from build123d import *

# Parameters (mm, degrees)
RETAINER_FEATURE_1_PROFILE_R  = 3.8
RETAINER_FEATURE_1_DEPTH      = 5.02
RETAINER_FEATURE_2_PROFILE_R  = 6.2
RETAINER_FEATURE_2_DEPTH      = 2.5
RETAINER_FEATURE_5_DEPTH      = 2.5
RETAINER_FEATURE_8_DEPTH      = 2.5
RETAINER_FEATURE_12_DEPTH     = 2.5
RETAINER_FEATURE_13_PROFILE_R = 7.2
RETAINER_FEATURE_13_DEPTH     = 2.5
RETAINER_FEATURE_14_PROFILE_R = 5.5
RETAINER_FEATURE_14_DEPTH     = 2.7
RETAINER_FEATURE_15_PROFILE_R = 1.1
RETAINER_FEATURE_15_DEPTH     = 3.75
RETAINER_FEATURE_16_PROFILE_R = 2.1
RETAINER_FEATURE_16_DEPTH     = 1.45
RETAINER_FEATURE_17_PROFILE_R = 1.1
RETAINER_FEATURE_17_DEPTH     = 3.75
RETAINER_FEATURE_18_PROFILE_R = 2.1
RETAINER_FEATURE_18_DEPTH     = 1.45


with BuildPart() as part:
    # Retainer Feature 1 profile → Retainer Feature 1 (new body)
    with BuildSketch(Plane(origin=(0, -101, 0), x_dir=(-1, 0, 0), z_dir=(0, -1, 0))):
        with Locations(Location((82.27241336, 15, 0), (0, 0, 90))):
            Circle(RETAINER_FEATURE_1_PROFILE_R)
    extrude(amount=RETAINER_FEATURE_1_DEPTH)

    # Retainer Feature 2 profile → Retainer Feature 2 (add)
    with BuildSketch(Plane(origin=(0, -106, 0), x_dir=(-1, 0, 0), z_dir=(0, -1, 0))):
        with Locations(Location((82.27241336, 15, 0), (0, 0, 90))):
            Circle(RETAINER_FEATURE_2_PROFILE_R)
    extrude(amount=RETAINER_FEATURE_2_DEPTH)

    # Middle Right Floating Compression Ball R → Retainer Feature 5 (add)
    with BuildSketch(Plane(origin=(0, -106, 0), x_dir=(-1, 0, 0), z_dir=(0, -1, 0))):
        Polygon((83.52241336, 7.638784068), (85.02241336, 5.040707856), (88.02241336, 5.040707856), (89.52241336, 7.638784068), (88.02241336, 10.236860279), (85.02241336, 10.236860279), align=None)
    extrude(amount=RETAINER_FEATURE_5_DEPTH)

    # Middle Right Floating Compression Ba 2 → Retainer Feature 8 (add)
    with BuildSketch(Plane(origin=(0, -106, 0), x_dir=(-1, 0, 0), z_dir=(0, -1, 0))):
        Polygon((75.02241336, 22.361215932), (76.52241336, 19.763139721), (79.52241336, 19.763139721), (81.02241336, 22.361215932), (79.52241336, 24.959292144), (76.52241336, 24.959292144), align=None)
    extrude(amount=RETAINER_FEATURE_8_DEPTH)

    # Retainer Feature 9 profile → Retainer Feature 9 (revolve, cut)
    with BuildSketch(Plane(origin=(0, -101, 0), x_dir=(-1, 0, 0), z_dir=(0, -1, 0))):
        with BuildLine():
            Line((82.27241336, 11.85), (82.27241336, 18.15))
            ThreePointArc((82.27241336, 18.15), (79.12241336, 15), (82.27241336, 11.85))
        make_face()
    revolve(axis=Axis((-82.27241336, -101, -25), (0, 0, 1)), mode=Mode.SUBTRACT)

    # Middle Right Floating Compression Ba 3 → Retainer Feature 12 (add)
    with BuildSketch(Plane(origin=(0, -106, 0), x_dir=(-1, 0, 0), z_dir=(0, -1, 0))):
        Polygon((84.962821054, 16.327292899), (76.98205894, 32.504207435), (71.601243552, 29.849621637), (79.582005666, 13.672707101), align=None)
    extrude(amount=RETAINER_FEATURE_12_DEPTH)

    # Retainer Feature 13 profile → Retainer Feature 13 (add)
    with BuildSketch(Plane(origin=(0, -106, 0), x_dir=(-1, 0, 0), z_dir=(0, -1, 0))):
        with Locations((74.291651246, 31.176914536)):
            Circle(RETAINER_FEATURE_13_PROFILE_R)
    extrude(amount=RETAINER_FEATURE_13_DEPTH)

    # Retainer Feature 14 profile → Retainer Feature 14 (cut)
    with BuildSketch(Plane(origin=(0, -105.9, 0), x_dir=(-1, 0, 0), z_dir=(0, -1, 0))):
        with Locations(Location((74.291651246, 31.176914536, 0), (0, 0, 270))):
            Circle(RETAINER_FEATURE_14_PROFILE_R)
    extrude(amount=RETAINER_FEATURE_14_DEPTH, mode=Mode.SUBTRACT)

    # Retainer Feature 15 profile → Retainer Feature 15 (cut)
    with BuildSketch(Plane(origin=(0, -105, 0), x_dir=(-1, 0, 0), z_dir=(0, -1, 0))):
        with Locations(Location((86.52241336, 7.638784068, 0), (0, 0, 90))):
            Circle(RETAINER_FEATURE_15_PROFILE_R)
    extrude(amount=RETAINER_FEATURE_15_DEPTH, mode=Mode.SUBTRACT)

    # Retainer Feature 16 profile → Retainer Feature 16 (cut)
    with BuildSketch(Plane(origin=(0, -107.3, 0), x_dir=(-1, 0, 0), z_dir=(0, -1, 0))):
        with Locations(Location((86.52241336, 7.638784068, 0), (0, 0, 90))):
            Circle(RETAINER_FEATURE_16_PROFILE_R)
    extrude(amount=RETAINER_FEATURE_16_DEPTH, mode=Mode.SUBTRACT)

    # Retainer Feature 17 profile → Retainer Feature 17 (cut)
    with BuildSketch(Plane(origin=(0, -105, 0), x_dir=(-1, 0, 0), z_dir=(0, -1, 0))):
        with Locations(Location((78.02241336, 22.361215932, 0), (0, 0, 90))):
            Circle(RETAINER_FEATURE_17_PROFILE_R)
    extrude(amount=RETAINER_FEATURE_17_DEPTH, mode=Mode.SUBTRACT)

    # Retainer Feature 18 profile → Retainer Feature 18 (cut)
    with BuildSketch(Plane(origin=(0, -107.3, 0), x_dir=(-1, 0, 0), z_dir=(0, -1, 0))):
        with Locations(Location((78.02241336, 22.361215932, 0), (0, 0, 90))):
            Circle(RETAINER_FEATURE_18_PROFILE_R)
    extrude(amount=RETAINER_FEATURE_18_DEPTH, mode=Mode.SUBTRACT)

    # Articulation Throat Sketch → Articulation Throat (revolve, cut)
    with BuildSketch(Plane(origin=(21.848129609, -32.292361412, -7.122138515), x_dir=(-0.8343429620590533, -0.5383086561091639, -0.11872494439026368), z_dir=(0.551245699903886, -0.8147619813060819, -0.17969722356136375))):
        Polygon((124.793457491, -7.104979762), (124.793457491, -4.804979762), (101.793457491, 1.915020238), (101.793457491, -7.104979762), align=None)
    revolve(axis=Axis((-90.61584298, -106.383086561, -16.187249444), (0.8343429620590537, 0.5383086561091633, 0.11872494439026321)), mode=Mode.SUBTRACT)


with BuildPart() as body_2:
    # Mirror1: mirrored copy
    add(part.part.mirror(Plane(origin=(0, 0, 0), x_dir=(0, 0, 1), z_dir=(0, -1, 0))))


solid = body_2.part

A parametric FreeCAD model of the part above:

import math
import FreeCAD as App
import Part
import Sketcher

V = App.Vector
Q = App.Units.Quantity

doc = App.newDocument("Part")
params = doc.addObject("Spreadsheet::Sheet", "Params")
for row, (alias, value) in enumerate([
    ("sketch1_diameter", "7.6 mm"),
    ("pad1_length", "5.02 mm"),
    ("sketch2_diameter", "12.4 mm"),
    ("pad2_length", "2.5 mm"),
    ("sketch3_width", "3 mm"),
    ("sketch3_length", "3 mm"),
    ("pad3_length", "2.5 mm"),
    ("sketch4_width", "3 mm"),
    ("sketch4_length", "3 mm"),
    ("pad4_length", "2.5 mm"),
    ("sketch5_radius", "3.15 mm"),
    ("groove_angle", "360 deg"),
    ("sketch6_length", "6 mm"),
    ("pad5_length", "2.5 mm"),
    ("sketch7_diameter", "14.4 mm"),
    ("pad6_length", "2.5 mm"),
    ("sketch8_diameter", "11 mm"),
    ("pocket1_length", "2.7 mm"),
    ("sketch9_diameter", "2.2 mm"),
    ("pocket2_length", "3.75 mm"),
    ("sketch10_diameter", "4.2 mm"),
    ("pocket3_length", "1.45 mm"),
    ("sketch11_diameter", "2.2 mm"),
    ("pocket4_length", "3.75 mm"),
    ("sketch12_diameter", "4.2 mm"),
    ("pocket5_length", "1.45 mm"),
    ("sketch13_width", "23 mm"),
    ("sketch13_height", "2.3 mm"),
    ("sketch13_height2", "9.02 mm"),
    ("groove2_angle", "360 deg"),
], start=1):
    params.set(f"A{row}", alias)
    params.set(f"B{row}", "=" + value)
    params.setAlias(f"B{row}", alias)

body = doc.addObject("PartDesign::Body", "Body")

# Sketch on XZ plane
sketch1 = body.newObject("Sketcher::SketchObject", "Sketch")
sketch1.AttachmentSupport = (doc.getObject("XZ_Plane"), [""])
sketch1.MapMode = "FlatFace"
sketch1.AttachmentOffset = App.Placement(V(0, 0, 101), App.Rotation())
sketch1.addGeometry(Part.Circle(V(-82.3, -15, 0), V(0, 0, 1), 3.8), False)
sketch1.addConstraint(Sketcher.Constraint("Diameter", 0, 7.6))
sketch1.addConstraint(Sketcher.Constraint("DistanceY", 0, 3, -1, 1, 15.0))
sketch1.addConstraint(Sketcher.Constraint("DistanceX", 0, 3, -1, 1, 82.272413))
sketch1.setExpression("Constraints[0]", "Params.sketch1_diameter")
pad1 = body.newObject("PartDesign::Pad", "Pad")
pad1.Profile = sketch1
pad1.setExpression("Length", "Params.pad1_length")

# Sketch on XZ plane
sketch2 = body.newObject("Sketcher::SketchObject", "Sketch001")
sketch2.AttachmentSupport = (doc.getObject("XZ_Plane"), [""])
sketch2.MapMode = "FlatFace"
sketch2.AttachmentOffset = App.Placement(V(0, 0, 106), App.Rotation())
sketch2.addGeometry(Part.Circle(V(-82, -15, 0), V(0, 0, 1), 6), False)
sketch2.addConstraint(Sketcher.Constraint("Diameter", 0, 12.4))
sketch2.addConstraint(Sketcher.Constraint("DistanceY", 0, 3, -1, 1, 15.0))
sketch2.addConstraint(Sketcher.Constraint("DistanceX", 0, 3, -1, 1, 82.272413))
sketch2.setExpression("Constraints[0]", "Params.sketch2_diameter")
pad2 = body.newObject("PartDesign::Pad", "Pad001")
pad2.Profile = sketch2
pad2.setExpression("Length", "Params.pad2_length")

# Sketch on XZ plane
sketch3 = body.newObject("Sketcher::SketchObject", "Sketch002")
sketch3.AttachmentSupport = (doc.getObject("XZ_Plane"), [""])
sketch3.MapMode = "FlatFace"
sketch3.AttachmentOffset = App.Placement(V(0, 0, 106), App.Rotation())
sketch3.addGeometry(Part.LineSegment(V(-83.5, -7.6, 0), V(-85, -5, 0)), False)
sketch3.addGeometry(Part.LineSegment(V(-85, -5, 0), V(-88, -5, 0)), False)
sketch3.addGeometry(Part.LineSegment(V(-88, -5, 0), V(-89.5, -7.6, 0)), False)
sketch3.addGeometry(Part.LineSegment(V(-89.5, -7.6, 0), V(-88, -10.2, 0)), False)
sketch3.addGeometry(Part.LineSegment(V(-88, -10.2, 0), V(-85, -10.2, 0)), False)
sketch3.addGeometry(Part.LineSegment(V(-85, -10.2, 0), V(-83.5, -7.6, 0)), False)
sketch3.addConstraint(Sketcher.Constraint("Coincident", 0, 2, 1, 1))
sketch3.addConstraint(Sketcher.Constraint("Coincident", 1, 2, 2, 1))
sketch3.addConstraint(Sketcher.Constraint("Coincident", 2, 2, 3, 1))
sketch3.addConstraint(Sketcher.Constraint("Coincident", 3, 2, 4, 1))
sketch3.addConstraint(Sketcher.Constraint("Coincident", 4, 2, 5, 1))
sketch3.addConstraint(Sketcher.Constraint("Coincident", 5, 2, 0, 1))
sketch3.addConstraint(Sketcher.Constraint("Horizontal", 1))
sketch3.addConstraint(Sketcher.Constraint("Horizontal", 4))
sketch3.addConstraint(Sketcher.Constraint("Parallel", 0, 3))
sketch3.addConstraint(Sketcher.Constraint("Parallel", 2, 5))
sketch3.addConstraint(Sketcher.Constraint("Horizontal", 2, 2, 5, 2))
sketch3.addConstraint(Sketcher.Constraint("Vertical", 1, 2, 3, 2))
sketch3.addConstraint(Sketcher.Constraint("Vertical", 0, 2, 4, 2))
sketch3.addConstraint(Sketcher.Constraint("DistanceX", 1, 2, 1, 1, 3.0))
sketch3.addConstraint(Sketcher.Constraint("Angle", 0, Q("120 deg")))
sketch3.addConstraint(Sketcher.Constraint("Distance", 0, 3.0))
sketch3.addConstraint(Sketcher.Constraint("DistanceY", 3, 2, -1, 1, 10.23686))
sketch3.addConstraint(Sketcher.Constraint("DistanceX", 0, 2, -1, 1, 85.022413))
sketch3.setExpression("Constraints[13]", "Params.sketch3_width")
sketch3.setExpression("Constraints[15]", "Params.sketch3_length")
pad3 = body.newObject("PartDesign::Pad", "Pad002")
pad3.Profile = sketch3
pad3.setExpression("Length", "Params.pad3_length")

# Sketch on XZ plane
sketch4 = body.newObject("Sketcher::SketchObject", "Sketch003")
sketch4.AttachmentSupport = (doc.getObject("XZ_Plane"), [""])
sketch4.MapMode = "FlatFace"
sketch4.AttachmentOffset = App.Placement(V(0, 0, 106), App.Rotation())
sketch4.addGeometry(Part.LineSegment(V(-75, -22.4, 0), V(-76.5, -19.8, 0)), False)
sketch4.addGeometry(Part.LineSegment(V(-76.5, -19.8, 0), V(-79.5, -19.8, 0)), False)
sketch4.addGeometry(Part.LineSegment(V(-79.5, -19.8, 0), V(-81, -22.4, 0)), False)
sketch4.addGeometry(Part.LineSegment(V(-81, -22.4, 0), V(-79.5, -25, 0)), False)
sketch4.addGeometry(Part.LineSegment(V(-79.5, -25, 0), V(-76.5, -25, 0)), False)
sketch4.addGeometry(Part.LineSegment(V(-76.5, -25, 0), V(-75, -22.4, 0)), False)
sketch4.addConstraint(Sketcher.Constraint("Coincident", 0, 2, 1, 1))
sketch4.addConstraint(Sketcher.Constraint("Coincident", 1, 2, 2, 1))
sketch4.addConstraint(Sketcher.Constraint("Coincident", 2, 2, 3, 1))
sketch4.addConstraint(Sketcher.Constraint("Coincident", 3, 2, 4, 1))
sketch4.addConstraint(Sketcher.Constraint("Coincident", 4, 2, 5, 1))
sketch4.addConstraint(Sketcher.Constraint("Coincident", 5, 2, 0, 1))
sketch4.addConstraint(Sketcher.Constraint("Horizontal", 1))
sketch4.addConstraint(Sketcher.Constraint("Horizontal", 4))
sketch4.addConstraint(Sketcher.Constraint("Parallel", 0, 3))
sketch4.addConstraint(Sketcher.Constraint("Parallel", 2, 5))
sketch4.addConstraint(Sketcher.Constraint("Horizontal", 2, 2, 5, 2))
sketch4.addConstraint(Sketcher.Constraint("Vertical", 1, 2, 3, 2))
sketch4.addConstraint(Sketcher.Constraint("Vertical", 0, 2, 4, 2))
sketch4.addConstraint(Sketcher.Constraint("DistanceX", 1, 2, 1, 1, 3.0))
sketch4.addConstraint(Sketcher.Constraint("Angle", 0, Q("120 deg")))
sketch4.addConstraint(Sketcher.Constraint("Distance", 0, 3.0))
sketch4.addConstraint(Sketcher.Constraint("DistanceY", 0, 2, -1, 1, 19.76314))
sketch4.addConstraint(Sketcher.Constraint("DistanceX", 0, 2, -1, 1, 76.522413))
sketch4.setExpression("Constraints[13]", "Params.sketch4_width")
sketch4.setExpression("Constraints[15]", "Params.sketch4_length")
pad4 = body.newObject("PartDesign::Pad", "Pad003")
pad4.Profile = sketch4
pad4.setExpression("Length", "Params.pad4_length")

# Sketch on XZ plane
sketch5 = body.newObject("Sketcher::SketchObject", "Sketch004")
sketch5.AttachmentSupport = (doc.getObject("XZ_Plane"), [""])
sketch5.MapMode = "FlatFace"
sketch5.AttachmentOffset = App.Placement(V(0, 0, 101), App.Rotation())
sketch5.addGeometry(Part.LineSegment(V(-82.3, -11.8, 0), V(-82.3, -18.1, 0)), False)
sketch5.addGeometry(Part.ArcOfCircle(Part.Circle(V(-82.3, -15, 0), V(0, 0, 1), 3.1), math.radians(-90), math.radians(90)), False)
sketch5.addGeometry(Part.LineSegment(V(-82.3, -18.1, 0), V(-82.3, -11.8, 0)), True)  # axis
sketch5.addConstraint(Sketcher.Constraint("Coincident", 0, 1, 1, 2))
sketch5.addConstraint(Sketcher.Constraint("Coincident", 1, 1, 0, 2))
sketch5.addConstraint(Sketcher.Constraint("Vertical", 0))
sketch5.addConstraint(Sketcher.Constraint("Vertical", 2))
sketch5.addConstraint(Sketcher.Constraint("Coincident", 2, 1, 1, 1))
sketch5.addConstraint(Sketcher.Constraint("Vertical", 1, 3, 0, 1))
sketch5.addConstraint(Sketcher.Constraint("Equal", 0, 2))
sketch5.addConstraint(Sketcher.Constraint("Radius", 1, 3.15))
sketch5.addConstraint(Sketcher.Constraint("DistanceY", 1, 3, -1, 1, 15.0))
sketch5.addConstraint(Sketcher.Constraint("DistanceX", 1, 3, -1, 1, 82.272413))
sketch5.setExpression("Constraints[7]", "Params.sketch5_radius")
groove = body.newObject("PartDesign::Groove", "Groove")
groove.Profile = sketch5
groove.ReferenceAxis = (sketch5, ["Axis0"])
groove.setExpression("Angle", "Params.groove_angle")

# Sketch on XZ plane
sketch6 = body.newObject("Sketcher::SketchObject", "Sketch005")
sketch6.AttachmentSupport = (doc.getObject("XZ_Plane"), [""])
sketch6.MapMode = "FlatFace"
sketch6.AttachmentOffset = App.Placement(V(0, 0, 106), App.Rotation())
sketch6.addGeometry(Part.LineSegment(V(-85, -16, 0), V(-77, -33, 0)), False)
sketch6.addGeometry(Part.LineSegment(V(-77, -33, 0), V(-72, -30, 0)), False)
sketch6.addGeometry(Part.LineSegment(V(-72, -30, 0), V(-80, -14, 0)), False)
sketch6.addGeometry(Part.LineSegment(V(-80, -14, 0), V(-85, -16, 0)), False)
sketch6.addConstraint(Sketcher.Constraint("Coincident", 0, 2, 1, 1))
sketch6.addConstraint(Sketcher.Constraint("Coincident", 1, 2, 2, 1))
sketch6.addConstraint(Sketcher.Constraint("Coincident", 2, 2, 3, 1))
sketch6.addConstraint(Sketcher.Constraint("Coincident", 3, 2, 0, 1))
sketch6.addConstraint(Sketcher.Constraint("Perpendicular", 0, 1))
sketch6.addConstraint(Sketcher.Constraint("Perpendicular", 1, 2))
sketch6.addConstraint(Sketcher.Constraint("Perpendicular", 2, 3))
sketch6.addConstraint(Sketcher.Constraint("Distance", 1, 6.0))
sketch6.addConstraint(Sketcher.Constraint("DistanceY", 0, 2, 2, 2, 18.8315))
sketch6.addConstraint(Sketcher.Constraint("DistanceX", 0, 2, -1, 1, 76.982059))
sketch6.addConstraint(Sketcher.Constraint("DistanceY", 1, 2, -1, 1, 29.849622))
sketch6.addConstraint(Sketcher.Constraint("DistanceX", 3, 2, -1, 1, 84.962821))
sketch6.setExpression("Constraints[7]", "Params.sketch6_length")
pad5 = body.newObject("PartDesign::Pad", "Pad004")
pad5.Profile = sketch6
pad5.setExpression("Length", "Params.pad5_length")

# Sketch on XZ plane
sketch7 = body.newObject("Sketcher::SketchObject", "Sketch006")
sketch7.AttachmentSupport = (doc.getObject("XZ_Plane"), [""])
sketch7.MapMode = "FlatFace"
sketch7.AttachmentOffset = App.Placement(V(0, 0, 106), App.Rotation())
sketch7.addGeometry(Part.Circle(V(-74, -31, 0), V(0, 0, 1), 7), False)
sketch7.addConstraint(Sketcher.Constraint("Diameter", 0, 14.4))
sketch7.addConstraint(Sketcher.Constraint("DistanceX", 0, 3, -1, 1, 74.291651))
sketch7.addConstraint(Sketcher.Constraint("DistanceY", 0, 3, -1, 1, 31.176915))
sketch7.setExpression("Constraints[0]", "Params.sketch7_diameter")
pad6 = body.newObject("PartDesign::Pad", "Pad005")
pad6.Profile = sketch7
pad6.setExpression("Length", "Params.pad6_length")

# Sketch on XZ plane
sketch8 = body.newObject("Sketcher::SketchObject", "Sketch007")
sketch8.AttachmentSupport = (doc.getObject("XZ_Plane"), [""])
sketch8.MapMode = "FlatFace"
sketch8.AttachmentOffset = App.Placement(V(0, 0, 105.9), App.Rotation())
sketch8.addGeometry(Part.Circle(V(-74, -31, 0), V(0, 0, 1), 6), False)
sketch8.addConstraint(Sketcher.Constraint("Diameter", 0, 11.0))
sketch8.addConstraint(Sketcher.Constraint("DistanceX", 0, 3, -1, 1, 74.291651))
sketch8.addConstraint(Sketcher.Constraint("DistanceY", 0, 3, -1, 1, 31.176915))
sketch8.setExpression("Constraints[0]", "Params.sketch8_diameter")
pocket1 = body.newObject("PartDesign::Pocket", "Pocket")
pocket1.Profile = sketch8
pocket1.setExpression("Length", "Params.pocket1_length")
pocket1.Reversed = True

# Sketch on XZ plane
sketch9 = body.newObject("Sketcher::SketchObject", "Sketch008")
sketch9.AttachmentSupport = (doc.getObject("XZ_Plane"), [""])
sketch9.MapMode = "FlatFace"
sketch9.AttachmentOffset = App.Placement(V(0, 0, 105), App.Rotation())
sketch9.addGeometry(Part.Circle(V(-86.5, -7.6, 0), V(0, 0, 1), 1.1), False)
sketch9.addConstraint(Sketcher.Constraint("Diameter", 0, 2.2))
sketch9.addConstraint(Sketcher.Constraint("DistanceX", 0, 3, -1, 1, 86.522413))
sketch9.addConstraint(Sketcher.Constraint("DistanceY", 0, 3, -1, 1, 7.638784))
sketch9.setExpression("Constraints[0]", "Params.sketch9_diameter")
pocket2 = body.newObject("PartDesign::Pocket", "Pocket001")
pocket2.Profile = sketch9
pocket2.setExpression("Length", "Params.pocket2_length")
pocket2.Reversed = True

# Sketch on XZ plane
sketch10 = body.newObject("Sketcher::SketchObject", "Sketch009")
sketch10.AttachmentSupport = (doc.getObject("XZ_Plane"), [""])
sketch10.MapMode = "FlatFace"
sketch10.AttachmentOffset = App.Placement(V(0, 0, 107.3), App.Rotation())
sketch10.addGeometry(Part.Circle(V(-86.5, -7.6, 0), V(0, 0, 1), 2.1), False)
sketch10.addConstraint(Sketcher.Constraint("Diameter", 0, 4.2))
sketch10.addConstraint(Sketcher.Constraint("DistanceX", 0, 3, -1, 1, 86.522413))
sketch10.addConstraint(Sketcher.Constraint("DistanceY", 0, 3, -1, 1, 7.638784))
sketch10.setExpression("Constraints[0]", "Params.sketch10_diameter")
pocket3 = body.newObject("PartDesign::Pocket", "Pocket002")
pocket3.Profile = sketch10
pocket3.setExpression("Length", "Params.pocket3_length")
pocket3.Reversed = True

# Sketch on XZ plane
sketch11 = body.newObject("Sketcher::SketchObject", "Sketch010")
sketch11.AttachmentSupport = (doc.getObject("XZ_Plane"), [""])
sketch11.MapMode = "FlatFace"
sketch11.AttachmentOffset = App.Placement(V(0, 0, 105), App.Rotation())
sketch11.addGeometry(Part.Circle(V(-78, -22.4, 0), V(0, 0, 1), 1.1), False)
sketch11.addConstraint(Sketcher.Constraint("Diameter", 0, 2.2))
sketch11.addConstraint(Sketcher.Constraint("DistanceX", 0, 3, -1, 1, 78.022413))
sketch11.addConstraint(Sketcher.Constraint("DistanceY", 0, 3, -1, 1, 22.361216))
sketch11.setExpression("Constraints[0]", "Params.sketch11_diameter")
pocket4 = body.newObject("PartDesign::Pocket", "Pocket003")
pocket4.Profile = sketch11
pocket4.setExpression("Length", "Params.pocket4_length")
pocket4.Reversed = True

# Sketch on XZ plane
sketch12 = body.newObject("Sketcher::SketchObject", "Sketch011")
sketch12.AttachmentSupport = (doc.getObject("XZ_Plane"), [""])
sketch12.MapMode = "FlatFace"
sketch12.AttachmentOffset = App.Placement(V(0, 0, 107.3), App.Rotation())
sketch12.addGeometry(Part.Circle(V(-78, -22.4, 0), V(0, 0, 1), 2.1), False)
sketch12.addConstraint(Sketcher.Constraint("Diameter", 0, 4.2))
sketch12.addConstraint(Sketcher.Constraint("DistanceX", 0, 3, -1, 1, 78.022413))
sketch12.addConstraint(Sketcher.Constraint("DistanceY", 0, 3, -1, 1, 22.361216))
sketch12.setExpression("Constraints[0]", "Params.sketch12_diameter")
pocket5 = body.newObject("PartDesign::Pocket", "Pocket004")
pocket5.Profile = sketch12
pocket5.setExpression("Length", "Params.pocket5_length")
pocket5.Reversed = True

# Sketch on an angled plane
sketch13 = body.newObject("Sketcher::SketchObject", "Sketch012")
sketch13.Placement = App.Placement(V(21.84813, -32.292361, -7.122139), App.Rotation(V(-0.834342962, -0.538308656, -0.118724944), V(-0.000000001, 0.215375729, -0.976531256), V(0.5512457, -0.814761981, -0.179697224), "ZXY"))
sketch13.addGeometry(Part.LineSegment(V(124.8, -7.1, 0), V(124.8, -4.8, 0)), False)
sketch13.addGeometry(Part.LineSegment(V(124.8, -4.8, 0), V(101.8, 1.9, 0)), False)
sketch13.addGeometry(Part.LineSegment(V(101.8, 1.9, 0), V(101.8, -7.1, 0)), False)
sketch13.addGeometry(Part.LineSegment(V(101.8, -7.1, 0), V(124.8, -7.1, 0)), False)
sketch13.addGeometry(Part.LineSegment(V(124.8, -7.1, 0), V(101.8, -7.1, 0)), True)  # axis
sketch13.addConstraint(Sketcher.Constraint("Coincident", 0, 2, 1, 1))
sketch13.addConstraint(Sketcher.Constraint("Coincident", 1, 2, 2, 1))
sketch13.addConstraint(Sketcher.Constraint("Coincident", 2, 2, 3, 1))
sketch13.addConstraint(Sketcher.Constraint("Coincident", 3, 2, 0, 1))
sketch13.addConstraint(Sketcher.Constraint("Vertical", 0))
sketch13.addConstraint(Sketcher.Constraint("Vertical", 2))
sketch13.addConstraint(Sketcher.Constraint("Horizontal", 3))
sketch13.addConstraint(Sketcher.Constraint("Horizontal", 4))
sketch13.addConstraint(Sketcher.Constraint("Coincident", 4, 1, 3, 2))
sketch13.addConstraint(Sketcher.Constraint("Vertical", 1, 2, 4, 2))
sketch13.addConstraint(Sketcher.Constraint("DistanceX", 3, 1, 3, 2, 23.0))
sketch13.addConstraint(Sketcher.Constraint("DistanceY", 0, 1, 0, 2, 2.3))
sketch13.addConstraint(Sketcher.Constraint("DistanceY", 2, 2, 2, 1, 9.02))
sketch13.addConstraint(Sketcher.Constraint("DistanceY", 0, 2, -1, 1, 4.80498))
sketch13.addConstraint(Sketcher.Constraint("DistanceX", -1, 1, 0, 2, 124.793457))
sketch13.setExpression("Constraints[10]", "Params.sketch13_width")
sketch13.setExpression("Constraints[11]", "Params.sketch13_height")
sketch13.setExpression("Constraints[12]", "Params.sketch13_height2")
groove2 = body.newObject("PartDesign::Groove", "Groove001")
groove2.Profile = sketch13
groove2.ReferenceAxis = (sketch13, ["Axis0"])
groove2.setExpression("Angle", "Params.groove2_angle")
body2 = doc.addObject("PartDesign::Body", "Body001")
doc.recompute()

mirroring = doc.addObject("Part::Mirroring", "Mirroring")
mirroring.Source = body
mirroring.Base = V(0, 0, 0)
mirroring.Normal = V(0, -1, 0)
body2.BaseFeature = mirroring
doc.recompute()
body.Visibility = False
mirroring.Visibility = False

doc.recompute()
